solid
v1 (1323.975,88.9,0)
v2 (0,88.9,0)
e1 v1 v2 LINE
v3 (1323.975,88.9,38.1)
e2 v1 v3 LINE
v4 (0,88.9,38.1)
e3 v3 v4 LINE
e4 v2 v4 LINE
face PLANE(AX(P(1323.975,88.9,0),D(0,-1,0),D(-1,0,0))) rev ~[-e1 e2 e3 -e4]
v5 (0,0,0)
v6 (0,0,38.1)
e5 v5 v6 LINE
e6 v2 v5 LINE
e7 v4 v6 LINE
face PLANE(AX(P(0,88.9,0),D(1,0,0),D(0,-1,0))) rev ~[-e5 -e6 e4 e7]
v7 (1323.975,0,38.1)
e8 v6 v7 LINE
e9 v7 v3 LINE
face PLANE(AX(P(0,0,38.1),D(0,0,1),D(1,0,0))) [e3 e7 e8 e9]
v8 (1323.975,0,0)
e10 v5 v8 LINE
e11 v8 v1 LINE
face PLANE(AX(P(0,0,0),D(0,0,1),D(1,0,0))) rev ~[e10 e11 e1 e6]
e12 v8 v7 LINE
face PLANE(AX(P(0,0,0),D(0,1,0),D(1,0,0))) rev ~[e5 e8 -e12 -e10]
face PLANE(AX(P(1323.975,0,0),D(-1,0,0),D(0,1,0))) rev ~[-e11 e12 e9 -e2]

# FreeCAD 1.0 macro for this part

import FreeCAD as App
import Part
import Sketcher

V = App.Vector
Q = App.Units.Quantity

doc = App.newDocument("Part")
body = doc.addObject("PartDesign::Body", "Body")

# Sketch on XY plane
sketch1 = doc.addObject("Sketcher::SketchObject", "Sketch")
body.addObject(sketch1)
sketch1.AttachmentSupport = (doc.XY_Plane, [""])
sketch1.MapMode = "FlatFace"
sketch1.addGeometry(Part.LineSegment(V(0, 89, 0), V(0, 0, 0)), False)
sketch1.addGeometry(Part.LineSegment(V(0, 0, 0), V(1324, 0, 0)), False)
sketch1.addGeometry(Part.LineSegment(V(1324, 0, 0), V(1324, 89, 0)), False)
sketch1.addGeometry(Part.LineSegment(V(1324, 89, 0), V(0, 89, 0)), False)
sketch1.addConstraint(Sketcher.Constraint("Coincident", 0, 2, 1, 1))
sketch1.addConstraint(Sketcher.Constraint("Coincident", 1, 2, 2, 1))
sketch1.addConstraint(Sketcher.Constraint("Coincident", 2, 2, 3, 1))
sketch1.addConstraint(Sketcher.Constraint("Coincident", 3, 2, 0, 1))
sketch1.addConstraint(Sketcher.Constraint("Vertical", 0))
sketch1.addConstraint(Sketcher.Constraint("Horizontal", 1))
sketch1.addConstraint(Sketcher.Constraint("Vertical", 2))
sketch1.addConstraint(Sketcher.Constraint("Horizontal", 3))
sketch1.addConstraint(Sketcher.Constraint("Coincident", 0, 2, -1, 1))
sketch1.addConstraint(Sketcher.Constraint("DistanceY", 0, 2, 0, 1, Q("3.5 in")))
sketch1.addConstraint(Sketcher.Constraint("DistanceX", 1, 1, 1, 2, Q("52.125 in")))
pad1 = doc.addObject("PartDesign::Pad", "Pad")
body.addObject(pad1)
pad1.Profile = sketch1
pad1.Length = Q("1.5 in")

doc.recompute()
